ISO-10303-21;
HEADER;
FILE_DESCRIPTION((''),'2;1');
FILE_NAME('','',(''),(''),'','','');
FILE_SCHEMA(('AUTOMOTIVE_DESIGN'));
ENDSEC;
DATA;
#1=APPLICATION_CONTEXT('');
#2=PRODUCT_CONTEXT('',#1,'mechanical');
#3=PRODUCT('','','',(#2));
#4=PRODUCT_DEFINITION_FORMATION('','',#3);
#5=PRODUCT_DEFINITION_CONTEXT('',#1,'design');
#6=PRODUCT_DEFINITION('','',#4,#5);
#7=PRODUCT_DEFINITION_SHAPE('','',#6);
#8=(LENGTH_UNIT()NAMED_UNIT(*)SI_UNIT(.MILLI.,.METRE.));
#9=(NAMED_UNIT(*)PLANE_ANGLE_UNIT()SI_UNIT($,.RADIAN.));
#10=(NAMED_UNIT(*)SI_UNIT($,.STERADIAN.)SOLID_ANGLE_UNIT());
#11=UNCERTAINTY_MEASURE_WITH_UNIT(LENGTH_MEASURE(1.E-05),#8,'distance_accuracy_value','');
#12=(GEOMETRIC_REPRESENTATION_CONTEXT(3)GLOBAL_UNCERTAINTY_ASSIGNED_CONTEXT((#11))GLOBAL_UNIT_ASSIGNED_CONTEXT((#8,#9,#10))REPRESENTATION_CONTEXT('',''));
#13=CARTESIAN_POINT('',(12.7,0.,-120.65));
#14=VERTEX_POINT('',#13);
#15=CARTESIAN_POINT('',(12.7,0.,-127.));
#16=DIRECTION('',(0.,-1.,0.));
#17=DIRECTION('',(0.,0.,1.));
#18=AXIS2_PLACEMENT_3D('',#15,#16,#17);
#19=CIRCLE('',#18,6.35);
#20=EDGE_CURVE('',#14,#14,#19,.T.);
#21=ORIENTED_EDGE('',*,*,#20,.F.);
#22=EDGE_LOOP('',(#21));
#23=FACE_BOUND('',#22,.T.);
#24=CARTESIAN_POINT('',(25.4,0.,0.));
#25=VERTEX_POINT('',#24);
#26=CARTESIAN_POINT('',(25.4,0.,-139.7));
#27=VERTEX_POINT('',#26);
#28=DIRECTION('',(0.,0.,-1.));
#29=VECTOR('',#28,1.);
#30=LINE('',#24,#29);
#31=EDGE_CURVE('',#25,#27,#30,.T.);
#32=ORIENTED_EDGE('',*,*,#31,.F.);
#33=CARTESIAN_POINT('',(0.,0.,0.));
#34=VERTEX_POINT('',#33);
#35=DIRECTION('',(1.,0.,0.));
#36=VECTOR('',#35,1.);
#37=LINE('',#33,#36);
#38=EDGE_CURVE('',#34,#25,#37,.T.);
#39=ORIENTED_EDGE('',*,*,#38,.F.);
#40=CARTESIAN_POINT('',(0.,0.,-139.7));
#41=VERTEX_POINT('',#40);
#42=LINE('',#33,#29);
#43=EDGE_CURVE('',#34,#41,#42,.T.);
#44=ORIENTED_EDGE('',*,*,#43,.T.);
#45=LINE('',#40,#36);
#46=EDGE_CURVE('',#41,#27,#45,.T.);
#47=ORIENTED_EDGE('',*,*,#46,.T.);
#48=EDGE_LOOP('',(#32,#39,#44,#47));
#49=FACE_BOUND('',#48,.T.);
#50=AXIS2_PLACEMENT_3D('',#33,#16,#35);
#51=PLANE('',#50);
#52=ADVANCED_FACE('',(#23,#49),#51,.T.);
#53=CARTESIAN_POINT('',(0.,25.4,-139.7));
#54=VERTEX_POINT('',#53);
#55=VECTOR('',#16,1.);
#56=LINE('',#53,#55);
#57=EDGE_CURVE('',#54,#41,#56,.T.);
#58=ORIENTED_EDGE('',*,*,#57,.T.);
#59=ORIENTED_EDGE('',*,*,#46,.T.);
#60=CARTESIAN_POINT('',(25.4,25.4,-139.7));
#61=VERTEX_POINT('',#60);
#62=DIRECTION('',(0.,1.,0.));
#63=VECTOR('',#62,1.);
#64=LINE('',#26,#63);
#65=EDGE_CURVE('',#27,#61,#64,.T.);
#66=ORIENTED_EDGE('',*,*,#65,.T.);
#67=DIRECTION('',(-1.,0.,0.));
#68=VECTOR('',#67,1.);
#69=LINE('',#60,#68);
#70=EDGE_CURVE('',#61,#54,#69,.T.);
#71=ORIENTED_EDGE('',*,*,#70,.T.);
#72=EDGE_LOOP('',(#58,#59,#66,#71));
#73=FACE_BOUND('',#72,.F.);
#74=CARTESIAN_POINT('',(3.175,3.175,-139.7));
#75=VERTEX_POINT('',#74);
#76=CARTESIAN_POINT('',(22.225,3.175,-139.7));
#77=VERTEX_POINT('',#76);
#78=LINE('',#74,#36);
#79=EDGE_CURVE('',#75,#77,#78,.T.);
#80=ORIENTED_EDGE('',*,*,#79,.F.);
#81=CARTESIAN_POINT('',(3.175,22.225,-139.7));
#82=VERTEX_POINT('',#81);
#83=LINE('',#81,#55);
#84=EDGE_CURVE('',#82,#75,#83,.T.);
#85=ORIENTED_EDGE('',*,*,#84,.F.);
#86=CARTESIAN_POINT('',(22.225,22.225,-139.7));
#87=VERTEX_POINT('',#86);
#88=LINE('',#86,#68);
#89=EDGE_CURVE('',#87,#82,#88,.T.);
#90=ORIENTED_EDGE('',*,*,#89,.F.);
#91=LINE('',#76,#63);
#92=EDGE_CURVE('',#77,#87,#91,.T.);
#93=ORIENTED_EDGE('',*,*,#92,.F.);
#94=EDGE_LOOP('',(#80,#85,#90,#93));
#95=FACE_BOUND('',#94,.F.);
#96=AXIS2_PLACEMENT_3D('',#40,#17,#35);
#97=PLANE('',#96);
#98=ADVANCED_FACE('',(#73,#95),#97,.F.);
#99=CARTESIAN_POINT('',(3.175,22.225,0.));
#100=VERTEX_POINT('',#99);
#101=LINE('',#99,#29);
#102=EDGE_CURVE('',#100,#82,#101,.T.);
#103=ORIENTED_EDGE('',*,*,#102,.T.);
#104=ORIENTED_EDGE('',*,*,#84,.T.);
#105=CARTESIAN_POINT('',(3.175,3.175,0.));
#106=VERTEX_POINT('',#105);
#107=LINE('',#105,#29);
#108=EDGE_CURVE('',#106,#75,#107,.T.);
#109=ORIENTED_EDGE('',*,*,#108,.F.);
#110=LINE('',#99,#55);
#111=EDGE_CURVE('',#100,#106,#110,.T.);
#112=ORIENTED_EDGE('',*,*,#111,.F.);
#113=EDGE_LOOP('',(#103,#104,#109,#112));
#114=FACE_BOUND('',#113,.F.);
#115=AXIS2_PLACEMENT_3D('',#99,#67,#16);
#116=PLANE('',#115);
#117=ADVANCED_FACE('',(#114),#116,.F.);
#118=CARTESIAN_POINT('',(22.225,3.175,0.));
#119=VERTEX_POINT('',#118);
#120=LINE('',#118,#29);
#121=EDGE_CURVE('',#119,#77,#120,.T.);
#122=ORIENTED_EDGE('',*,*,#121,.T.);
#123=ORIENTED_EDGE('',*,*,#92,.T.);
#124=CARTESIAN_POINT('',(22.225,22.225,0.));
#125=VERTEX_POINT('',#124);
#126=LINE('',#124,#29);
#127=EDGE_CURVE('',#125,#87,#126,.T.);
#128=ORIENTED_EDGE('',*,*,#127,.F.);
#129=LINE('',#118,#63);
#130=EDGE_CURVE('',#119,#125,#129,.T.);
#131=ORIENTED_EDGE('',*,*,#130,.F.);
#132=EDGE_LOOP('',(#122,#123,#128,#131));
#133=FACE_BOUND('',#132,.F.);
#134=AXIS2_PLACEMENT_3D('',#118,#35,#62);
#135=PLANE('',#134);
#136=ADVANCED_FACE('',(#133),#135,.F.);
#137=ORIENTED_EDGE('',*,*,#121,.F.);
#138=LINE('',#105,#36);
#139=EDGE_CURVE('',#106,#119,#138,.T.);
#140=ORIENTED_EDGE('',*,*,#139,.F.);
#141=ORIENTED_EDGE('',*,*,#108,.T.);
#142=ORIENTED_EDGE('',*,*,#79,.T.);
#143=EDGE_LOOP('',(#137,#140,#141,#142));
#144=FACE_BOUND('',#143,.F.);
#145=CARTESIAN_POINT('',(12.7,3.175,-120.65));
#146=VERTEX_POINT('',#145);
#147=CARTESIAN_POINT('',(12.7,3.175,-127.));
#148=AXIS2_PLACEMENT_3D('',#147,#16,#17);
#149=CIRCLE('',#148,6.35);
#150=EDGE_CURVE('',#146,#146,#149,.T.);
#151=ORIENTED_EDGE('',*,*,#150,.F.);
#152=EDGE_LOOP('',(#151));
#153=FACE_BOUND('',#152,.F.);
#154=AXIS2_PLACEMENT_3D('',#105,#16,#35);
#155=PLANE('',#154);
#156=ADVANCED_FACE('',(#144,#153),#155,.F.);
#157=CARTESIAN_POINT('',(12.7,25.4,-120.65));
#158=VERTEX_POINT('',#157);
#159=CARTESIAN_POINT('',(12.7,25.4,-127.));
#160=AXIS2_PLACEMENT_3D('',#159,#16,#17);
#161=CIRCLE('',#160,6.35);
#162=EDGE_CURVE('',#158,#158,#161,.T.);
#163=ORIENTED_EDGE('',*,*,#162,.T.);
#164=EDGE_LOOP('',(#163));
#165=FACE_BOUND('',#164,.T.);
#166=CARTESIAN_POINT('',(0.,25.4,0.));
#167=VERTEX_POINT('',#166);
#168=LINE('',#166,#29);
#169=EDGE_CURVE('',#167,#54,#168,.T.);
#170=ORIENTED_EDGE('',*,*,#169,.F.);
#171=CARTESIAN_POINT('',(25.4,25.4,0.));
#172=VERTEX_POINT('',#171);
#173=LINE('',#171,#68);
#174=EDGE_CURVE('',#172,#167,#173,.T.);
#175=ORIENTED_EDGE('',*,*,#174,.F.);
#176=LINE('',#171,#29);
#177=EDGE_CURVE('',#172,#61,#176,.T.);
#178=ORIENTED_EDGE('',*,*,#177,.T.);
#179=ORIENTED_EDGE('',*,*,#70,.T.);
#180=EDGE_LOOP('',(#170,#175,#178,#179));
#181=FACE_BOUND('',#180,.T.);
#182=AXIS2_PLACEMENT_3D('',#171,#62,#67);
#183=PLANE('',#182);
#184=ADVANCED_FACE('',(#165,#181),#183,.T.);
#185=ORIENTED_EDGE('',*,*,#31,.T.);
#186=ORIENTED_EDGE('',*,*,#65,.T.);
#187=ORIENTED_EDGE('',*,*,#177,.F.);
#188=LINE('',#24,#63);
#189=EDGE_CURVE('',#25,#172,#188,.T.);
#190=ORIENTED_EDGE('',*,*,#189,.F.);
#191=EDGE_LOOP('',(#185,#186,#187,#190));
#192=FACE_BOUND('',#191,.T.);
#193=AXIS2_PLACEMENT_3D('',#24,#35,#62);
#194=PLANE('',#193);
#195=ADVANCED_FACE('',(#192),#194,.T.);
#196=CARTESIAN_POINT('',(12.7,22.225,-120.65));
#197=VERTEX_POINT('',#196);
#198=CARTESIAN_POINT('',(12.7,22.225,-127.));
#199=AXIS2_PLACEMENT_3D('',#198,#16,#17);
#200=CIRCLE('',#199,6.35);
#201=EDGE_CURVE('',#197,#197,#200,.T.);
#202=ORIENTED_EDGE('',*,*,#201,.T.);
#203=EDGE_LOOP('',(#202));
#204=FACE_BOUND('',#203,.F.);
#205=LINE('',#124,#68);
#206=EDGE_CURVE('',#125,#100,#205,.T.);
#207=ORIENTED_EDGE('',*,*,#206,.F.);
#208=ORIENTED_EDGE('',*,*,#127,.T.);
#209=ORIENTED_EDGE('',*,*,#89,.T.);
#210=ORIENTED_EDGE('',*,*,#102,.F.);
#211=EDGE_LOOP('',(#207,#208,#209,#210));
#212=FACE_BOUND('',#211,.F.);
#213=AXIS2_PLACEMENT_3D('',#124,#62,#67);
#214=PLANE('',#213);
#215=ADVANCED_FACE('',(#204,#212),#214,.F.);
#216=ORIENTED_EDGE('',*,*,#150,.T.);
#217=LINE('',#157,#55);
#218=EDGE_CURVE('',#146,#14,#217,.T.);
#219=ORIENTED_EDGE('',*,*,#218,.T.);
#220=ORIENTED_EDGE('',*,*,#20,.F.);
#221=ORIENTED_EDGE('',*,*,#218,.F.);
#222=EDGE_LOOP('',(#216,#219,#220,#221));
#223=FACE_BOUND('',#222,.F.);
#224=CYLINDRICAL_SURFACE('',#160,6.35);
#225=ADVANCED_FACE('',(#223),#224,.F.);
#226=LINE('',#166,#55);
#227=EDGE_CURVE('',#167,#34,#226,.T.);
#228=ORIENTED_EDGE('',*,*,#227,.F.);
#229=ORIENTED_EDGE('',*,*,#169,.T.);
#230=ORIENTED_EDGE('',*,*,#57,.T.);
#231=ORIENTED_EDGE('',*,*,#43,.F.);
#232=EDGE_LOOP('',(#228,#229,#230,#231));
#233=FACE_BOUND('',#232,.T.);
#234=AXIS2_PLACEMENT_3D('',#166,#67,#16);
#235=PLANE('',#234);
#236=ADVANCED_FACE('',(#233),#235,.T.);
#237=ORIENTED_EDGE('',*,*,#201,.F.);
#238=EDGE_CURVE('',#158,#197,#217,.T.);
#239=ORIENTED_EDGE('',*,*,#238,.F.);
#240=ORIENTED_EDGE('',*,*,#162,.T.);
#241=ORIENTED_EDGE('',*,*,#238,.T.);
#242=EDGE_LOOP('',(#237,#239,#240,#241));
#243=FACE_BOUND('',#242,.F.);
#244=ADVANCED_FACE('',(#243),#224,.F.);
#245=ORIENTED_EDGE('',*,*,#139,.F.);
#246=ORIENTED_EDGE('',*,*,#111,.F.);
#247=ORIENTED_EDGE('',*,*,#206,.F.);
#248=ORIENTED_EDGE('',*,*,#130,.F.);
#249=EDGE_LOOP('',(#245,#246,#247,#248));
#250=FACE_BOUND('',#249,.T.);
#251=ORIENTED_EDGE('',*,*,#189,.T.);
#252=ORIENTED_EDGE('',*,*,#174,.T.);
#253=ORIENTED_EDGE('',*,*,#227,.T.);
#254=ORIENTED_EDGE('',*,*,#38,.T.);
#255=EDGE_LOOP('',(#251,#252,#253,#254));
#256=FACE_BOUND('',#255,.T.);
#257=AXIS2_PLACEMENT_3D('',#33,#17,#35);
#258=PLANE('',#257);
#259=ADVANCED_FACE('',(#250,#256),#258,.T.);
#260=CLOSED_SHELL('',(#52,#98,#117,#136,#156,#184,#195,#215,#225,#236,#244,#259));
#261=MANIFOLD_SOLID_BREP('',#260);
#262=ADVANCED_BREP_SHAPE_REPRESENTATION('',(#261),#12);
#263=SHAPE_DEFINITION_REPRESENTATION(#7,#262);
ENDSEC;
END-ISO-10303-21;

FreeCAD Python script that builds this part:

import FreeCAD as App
import Part
import Sketcher

V = App.Vector
Q = App.Units.Quantity

doc = App.newDocument("Part")
params = doc.addObject("Spreadsheet::Sheet", "Params")
for row, (alias, value) in enumerate([
    ("sketch1_width", "1 in"),
    ("pad1_length", "5.5 in"),
    ("sketch2_diameter", "0.5 in"),
    ("hole_diameter", "0.5 in"),
    ("hole_depth", "1 in"),
], start=1):
    params.set(f"A{row}", alias)
    params.set(f"B{row}", "=" + value)
    params.setAlias(f"B{row}", alias)

body = doc.addObject("PartDesign::Body", "Body")

sketch1 = body.newObject("Sketcher::SketchObject", "Sketch")
sketch1.AttachmentSupport = (doc.getObject("XY_Plane"), [""])
sketch1.MapMode = "FlatFace"
sketch1.addGeometry(Part.LineSegment(V(0, 25, 0), V(0, 0, 0)), False)
sketch1.addGeometry(Part.LineSegment(V(0, 0, 0), V(25, 0, 0)), False)
sketch1.addGeometry(Part.LineSegment(V(25, 0, 0), V(25, 25, 0)), False)
sketch1.addGeometry(Part.LineSegment(V(25, 25, 0), V(0, 25, 0)), False)
sketch1.addGeometry(Part.LineSegment(V(22, 3, 0), V(3, 3, 0)), False)
sketch1.addGeometry(Part.LineSegment(V(3, 3, 0), V(3, 22, 0)), False)
sketch1.addGeometry(Part.LineSegment(V(3, 22, 0), V(22, 22, 0)), False)
sketch1.addGeometry(Part.LineSegment(V(22, 22, 0), V(22, 3, 0)), False)
sketch1.addConstraint(Sketcher.Constraint("Coincident", 0, 2, 1, 1))
sketch1.addConstraint(Sketcher.Constraint("Coincident", 1, 2, 2, 1))
sketch1.addConstraint(Sketcher.Constraint("Coincident", 2, 2, 3, 1))
sketch1.addConstraint(Sketcher.Constraint("Coincident", 3, 2, 0, 1))
sketch1.addConstraint(Sketcher.Constraint("Coincident", 4, 2, 5, 1))
sketch1.addConstraint(Sketcher.Constraint("Coincident", 5, 2, 6, 1))
sketch1.addConstraint(Sketcher.Constraint("Coincident", 6, 2, 7, 1))
sketch1.addConstraint(Sketcher.Constraint("Coincident", 7, 2, 4, 1))
sketch1.addConstraint(Sketcher.Constraint("Vertical", 0))
sketch1.addConstraint(Sketcher.Constraint("Horizontal", 1))
sketch1.addConstraint(Sketcher.Constraint("Vertical", 2))
sketch1.addConstraint(Sketcher.Constraint("Horizontal", 3))
sketch1.addConstraint(Sketcher.Constraint("Horizontal", 4))
sketch1.addConstraint(Sketcher.Constraint("Vertical", 5))
sketch1.addConstraint(Sketcher.Constraint("Horizontal", 6))
sketch1.addConstraint(Sketcher.Constraint("Vertical", 7))
sketch1.addConstraint(Sketcher.Constraint("Coincident", 0, 2, -1, 1))
sketch1.addConstraint(Sketcher.Constraint("Equal", 3, 0))
sketch1.addConstraint(Sketcher.Constraint("Equal", 6, 5))
sketch1.addConstraint(Sketcher.Constraint("DistanceX", 1, 1, 1, 2, Q("1 in")))
sketch1.addConstraint(Sketcher.Constraint("DistanceX", -1, 1, 4, 2, Q("0.125 in")))
sketch1.addConstraint(Sketcher.Constraint("DistanceY", -1, 1, 4, 2, Q("0.125 in")))
sketch1.addConstraint(Sketcher.Constraint("DistanceY", 5, 2, 3, 2, Q("0.125 in")))
sketch1.setExpression("Constraints[19]", "Params.sketch1_width")
pad1 = body.newObject("PartDesign::Pad", "Pad")
pad1.Profile = sketch1
pad1.setExpression("Length", "Params.pad1_length")
pad1.Reversed = True

sketch2 = body.newObject("Sketcher::SketchObject", "Sketch001")
sketch2.AttachmentSupport = (doc.getObject("XZ_Plane"), [""])
sketch2.MapMode = "FlatFace"
sketch2.AttachmentOffset = App.Placement(V(0, 0, -1 * 25.4), App.Rotation())
sketch2.addGeometry(Part.Circle(V(13, -127, 0), V(0, 0, 1), 6), False)
sketch2.addConstraint(Sketcher.Constraint("Diameter", 0, Q("0.5 in")))
sketch2.addConstraint(Sketcher.Constraint("DistanceY", 0, 3, -1, 1, Q("5 in")))
sketch2.addConstraint(Sketcher.Constraint("DistanceX", -1, 1, 0, 3, Q("0.5 in")))
sketch2.setExpression("Constraints[0]", "Params.sketch2_diameter")
doc.recompute()
hole = body.newObject("PartDesign::Hole", "Hole")
hole.Profile = sketch2
hole.ThreadType = "None"
hole.setExpression("Diameter", "Params.hole_diameter")
hole.DepthType = "Dimension"
hole.setExpression("Depth", "Params.hole_depth")
hole.DrillPoint = "Angled"
hole.DrillPointAngle = 118
hole.Reversed = True

doc.recompute()
